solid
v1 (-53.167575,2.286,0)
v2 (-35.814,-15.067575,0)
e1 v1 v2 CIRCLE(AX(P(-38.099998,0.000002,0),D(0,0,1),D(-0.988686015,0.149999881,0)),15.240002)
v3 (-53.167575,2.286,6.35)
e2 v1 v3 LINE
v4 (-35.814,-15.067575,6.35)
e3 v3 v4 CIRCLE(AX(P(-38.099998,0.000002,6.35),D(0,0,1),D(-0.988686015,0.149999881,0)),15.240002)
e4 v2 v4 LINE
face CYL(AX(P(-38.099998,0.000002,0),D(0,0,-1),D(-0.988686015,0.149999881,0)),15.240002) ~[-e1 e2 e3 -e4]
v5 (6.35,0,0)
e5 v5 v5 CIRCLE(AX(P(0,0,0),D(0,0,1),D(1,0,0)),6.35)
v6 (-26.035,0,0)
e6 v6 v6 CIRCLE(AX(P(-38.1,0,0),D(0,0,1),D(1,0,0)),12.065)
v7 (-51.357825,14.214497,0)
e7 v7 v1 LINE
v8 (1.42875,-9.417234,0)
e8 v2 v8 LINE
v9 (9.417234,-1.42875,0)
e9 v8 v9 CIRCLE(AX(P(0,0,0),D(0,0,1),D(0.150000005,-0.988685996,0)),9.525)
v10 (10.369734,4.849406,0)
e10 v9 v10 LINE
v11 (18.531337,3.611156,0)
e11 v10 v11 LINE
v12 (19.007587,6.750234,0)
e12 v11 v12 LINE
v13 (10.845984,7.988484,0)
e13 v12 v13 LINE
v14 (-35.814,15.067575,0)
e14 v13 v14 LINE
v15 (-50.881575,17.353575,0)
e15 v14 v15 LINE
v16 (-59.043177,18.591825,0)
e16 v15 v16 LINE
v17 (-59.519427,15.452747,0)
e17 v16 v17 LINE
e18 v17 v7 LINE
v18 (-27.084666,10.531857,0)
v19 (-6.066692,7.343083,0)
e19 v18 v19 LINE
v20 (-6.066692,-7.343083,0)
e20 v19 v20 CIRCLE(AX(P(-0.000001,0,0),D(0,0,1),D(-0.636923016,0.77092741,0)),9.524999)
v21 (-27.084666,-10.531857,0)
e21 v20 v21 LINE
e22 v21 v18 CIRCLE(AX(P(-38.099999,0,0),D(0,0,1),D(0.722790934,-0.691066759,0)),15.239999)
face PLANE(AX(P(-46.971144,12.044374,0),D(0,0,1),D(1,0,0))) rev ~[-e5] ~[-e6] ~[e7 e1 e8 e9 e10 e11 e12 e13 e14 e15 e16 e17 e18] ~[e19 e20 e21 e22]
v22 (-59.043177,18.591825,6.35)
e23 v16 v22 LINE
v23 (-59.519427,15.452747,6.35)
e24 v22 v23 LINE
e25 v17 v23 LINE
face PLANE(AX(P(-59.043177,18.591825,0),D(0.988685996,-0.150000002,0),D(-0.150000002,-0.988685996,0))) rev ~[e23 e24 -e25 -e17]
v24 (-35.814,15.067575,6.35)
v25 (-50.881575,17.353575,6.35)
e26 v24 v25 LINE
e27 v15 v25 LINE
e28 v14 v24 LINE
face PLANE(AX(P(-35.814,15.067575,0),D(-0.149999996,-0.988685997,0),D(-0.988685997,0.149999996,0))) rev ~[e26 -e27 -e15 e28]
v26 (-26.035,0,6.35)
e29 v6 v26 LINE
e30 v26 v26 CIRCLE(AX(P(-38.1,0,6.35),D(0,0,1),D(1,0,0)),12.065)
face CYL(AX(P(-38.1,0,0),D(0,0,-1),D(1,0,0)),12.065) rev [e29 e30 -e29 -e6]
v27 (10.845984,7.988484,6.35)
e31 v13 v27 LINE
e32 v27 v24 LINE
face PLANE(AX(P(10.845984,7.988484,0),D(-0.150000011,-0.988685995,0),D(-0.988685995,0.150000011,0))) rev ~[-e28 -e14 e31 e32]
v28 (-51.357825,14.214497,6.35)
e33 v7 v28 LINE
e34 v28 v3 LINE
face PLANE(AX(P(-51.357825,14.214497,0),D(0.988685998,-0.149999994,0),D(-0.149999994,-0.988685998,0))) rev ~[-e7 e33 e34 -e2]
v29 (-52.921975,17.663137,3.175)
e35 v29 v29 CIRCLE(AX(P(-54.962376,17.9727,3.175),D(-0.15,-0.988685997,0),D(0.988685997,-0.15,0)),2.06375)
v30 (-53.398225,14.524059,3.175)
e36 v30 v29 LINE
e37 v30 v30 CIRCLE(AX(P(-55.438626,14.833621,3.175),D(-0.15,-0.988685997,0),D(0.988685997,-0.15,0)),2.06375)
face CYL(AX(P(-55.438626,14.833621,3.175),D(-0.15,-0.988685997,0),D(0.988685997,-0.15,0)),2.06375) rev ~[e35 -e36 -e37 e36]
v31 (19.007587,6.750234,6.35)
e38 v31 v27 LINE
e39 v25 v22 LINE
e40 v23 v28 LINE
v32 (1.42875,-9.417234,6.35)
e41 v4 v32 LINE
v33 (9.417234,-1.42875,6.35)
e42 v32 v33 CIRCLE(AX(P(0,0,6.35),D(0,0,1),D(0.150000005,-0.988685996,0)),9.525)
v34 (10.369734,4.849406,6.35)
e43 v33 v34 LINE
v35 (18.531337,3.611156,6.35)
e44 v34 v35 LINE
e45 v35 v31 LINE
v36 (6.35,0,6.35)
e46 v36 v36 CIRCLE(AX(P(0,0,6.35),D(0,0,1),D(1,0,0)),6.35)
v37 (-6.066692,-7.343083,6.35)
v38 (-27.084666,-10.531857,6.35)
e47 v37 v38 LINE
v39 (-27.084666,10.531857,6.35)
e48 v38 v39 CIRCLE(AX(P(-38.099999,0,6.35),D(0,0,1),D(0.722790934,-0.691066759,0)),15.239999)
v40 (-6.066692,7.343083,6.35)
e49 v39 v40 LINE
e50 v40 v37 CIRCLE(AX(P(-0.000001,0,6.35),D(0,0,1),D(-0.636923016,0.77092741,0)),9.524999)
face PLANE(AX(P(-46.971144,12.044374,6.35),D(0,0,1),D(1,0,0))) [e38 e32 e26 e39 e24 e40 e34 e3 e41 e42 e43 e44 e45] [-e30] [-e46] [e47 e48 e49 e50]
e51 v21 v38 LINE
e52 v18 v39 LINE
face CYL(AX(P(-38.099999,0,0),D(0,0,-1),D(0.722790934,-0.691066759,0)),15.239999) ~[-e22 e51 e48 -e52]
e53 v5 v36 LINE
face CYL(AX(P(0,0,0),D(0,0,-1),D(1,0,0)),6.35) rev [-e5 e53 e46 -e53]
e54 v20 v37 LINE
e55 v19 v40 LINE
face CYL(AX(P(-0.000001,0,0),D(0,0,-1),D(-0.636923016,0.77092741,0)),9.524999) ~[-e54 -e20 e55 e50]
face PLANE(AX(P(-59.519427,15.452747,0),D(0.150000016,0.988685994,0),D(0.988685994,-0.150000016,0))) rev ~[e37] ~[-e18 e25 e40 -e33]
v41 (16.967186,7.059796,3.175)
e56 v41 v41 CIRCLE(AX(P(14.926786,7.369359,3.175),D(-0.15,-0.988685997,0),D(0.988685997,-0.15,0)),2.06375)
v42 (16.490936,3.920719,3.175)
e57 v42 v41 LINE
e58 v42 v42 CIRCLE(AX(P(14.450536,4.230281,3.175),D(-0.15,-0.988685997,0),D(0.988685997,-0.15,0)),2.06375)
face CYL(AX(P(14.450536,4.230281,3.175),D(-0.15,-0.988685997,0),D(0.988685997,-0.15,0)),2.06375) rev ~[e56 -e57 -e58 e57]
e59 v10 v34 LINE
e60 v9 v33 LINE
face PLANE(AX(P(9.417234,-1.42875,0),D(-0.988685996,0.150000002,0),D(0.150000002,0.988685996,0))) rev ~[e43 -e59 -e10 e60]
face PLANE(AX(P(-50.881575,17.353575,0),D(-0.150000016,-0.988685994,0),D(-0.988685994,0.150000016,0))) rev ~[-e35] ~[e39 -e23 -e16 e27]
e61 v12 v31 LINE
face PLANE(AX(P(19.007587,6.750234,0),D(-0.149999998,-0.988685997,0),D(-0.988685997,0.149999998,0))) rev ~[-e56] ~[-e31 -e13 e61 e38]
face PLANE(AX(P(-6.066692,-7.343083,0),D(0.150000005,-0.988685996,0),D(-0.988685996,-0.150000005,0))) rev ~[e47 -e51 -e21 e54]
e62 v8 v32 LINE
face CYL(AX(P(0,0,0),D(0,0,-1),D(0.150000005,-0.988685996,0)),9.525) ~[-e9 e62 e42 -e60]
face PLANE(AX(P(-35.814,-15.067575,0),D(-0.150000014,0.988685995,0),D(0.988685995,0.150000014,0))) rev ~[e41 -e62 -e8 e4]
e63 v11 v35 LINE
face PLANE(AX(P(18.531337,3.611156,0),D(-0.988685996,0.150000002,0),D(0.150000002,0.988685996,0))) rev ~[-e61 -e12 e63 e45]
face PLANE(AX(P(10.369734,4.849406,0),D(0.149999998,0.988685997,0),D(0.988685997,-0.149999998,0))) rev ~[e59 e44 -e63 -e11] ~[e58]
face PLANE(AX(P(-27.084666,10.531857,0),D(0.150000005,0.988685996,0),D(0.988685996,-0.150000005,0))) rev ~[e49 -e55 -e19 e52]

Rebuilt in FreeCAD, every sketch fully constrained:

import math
import FreeCAD as App
import Part
import Sketcher
from FreeCAD import Vector
Q = App.Units.Quantity

doc = App.newDocument("Part")
params = doc.addObject("Spreadsheet::Sheet", "Params")
for row, (alias, value) in enumerate([
    ("sketch1_diameter", "0.5 in"),
    ("sketch1_radius", "0.6000001 in"),
    ("sketch1_radius2", "0.6 in"),
    ("sketch1_diameter2", "0.95 in"),
    ("sketch1_radius3", "0.375 in"),
    ("pad1_length", "0.25 in"),
], start=1):
    params.set(f"A{row}", alias)
    params.set(f"B{row}", "=" + value)
    params.setAlias(f"B{row}", alias)

body = doc.addObject("PartDesign::Body", "Body")

# Sketch on XY plane
sketch1 = body.newObject("Sketcher::SketchObject", "Sketch")
sketch1.AttachmentSupport = (doc.getObject("XY_Plane"), [""])
sketch1.MapMode = "FlatFace"
sketch1.addGeometry([
    Part.LineSegment(Vector(-35.8, 15.1, 0), Vector(-50.9, 17.4, 0)),  # 0
    Part.LineSegment(Vector(-50.9, 17.4, 0), Vector(-59, 18.6, 0)),  # 1
    Part.LineSegment(Vector(-59, 18.6, 0), Vector(-59.5, 15.5, 0)),  # 2
    Part.LineSegment(Vector(-59.5, 15.5, 0), Vector(-51.4, 14.2, 0)),  # 3
    Part.LineSegment(Vector(-51.4, 14.2, 0), Vector(-53.2, 2.3, 0)),  # 4
    Part.ArcOfCircle(Part.Circle(Vector(-38.1, 0, 0), Vector(0, 0, 1), 15.2), math.radians(171), math.radians(279)),  # 5
    Part.LineSegment(Vector(-35.8, -15.1, 0), Vector(1.4, -9.4, 0)),  # 6
    Part.ArcOfCircle(Part.Circle(Vector(0, 0, 0), Vector(0, 0, 1), 9.5), math.radians(-81), math.radians(-9)),  # 7
    Part.LineSegment(Vector(9.4, -1.4, 0), Vector(10.4, 4.8, 0)),  # 8
    Part.LineSegment(Vector(10.4, 4.8, 0), Vector(18.5, 3.6, 0)),  # 9
    Part.LineSegment(Vector(18.5, 3.6, 0), Vector(19, 6.8, 0)),  # 10
    Part.LineSegment(Vector(19, 6.8, 0), Vector(10.8, 8, 0)),  # 11
    Part.LineSegment(Vector(10.8, 8, 0), Vector(-35.8, 15.1, 0)),  # 12
    Part.Circle(Vector(0, 0, 0), Vector(0, 0, 1), 6.3),  # 13
    Part.Circle(Vector(-38.1, 0, 0), Vector(0, 0, 1), 12.1),  # 14
    Part.ArcOfCircle(Part.Circle(Vector(-38.1, 0, 0), Vector(0, 0, 1), 15.2), math.radians(-44), math.radians(44)),  # 15
    Part.LineSegment(Vector(-27.1, 10.5, 0), Vector(-6.1, 7.3, 0)),  # 16
    Part.ArcOfCircle(Part.Circle(Vector(0, 0, 0), Vector(0, 0, 1), 9.5), math.radians(130), math.radians(230)),  # 17
    Part.LineSegment(Vector(-6.1, -7.3, 0), Vector(-27.1, -10.5, 0)),  # 18
], False)
sketch1.addConstraint([
    Sketcher.Constraint("Coincident", 0, 2, 1, 1),
    Sketcher.Constraint("Coincident", 1, 2, 2, 1),
    Sketcher.Constraint("Coincident", 2, 2, 3, 1),
    Sketcher.Constraint("Coincident", 3, 2, 4, 1),
    Sketcher.Constraint("Tangent", 4, 2, 5, 1),
    Sketcher.Constraint("Tangent", 5, 2, 6, 1),
    Sketcher.Constraint("Tangent", 6, 2, 7, 1),
    Sketcher.Constraint("Tangent", 7, 2, 8, 1),
    Sketcher.Constraint("Coincident", 8, 2, 9, 1),
    Sketcher.Constraint("Coincident", 9, 2, 10, 1),
    Sketcher.Constraint("Coincident", 10, 2, 11, 1),
    Sketcher.Constraint("Coincident", 11, 2, 12, 1),
    Sketcher.Constraint("Coincident", 12, 2, 0, 1),
    Sketcher.Constraint("Coincident", 15, 2, 16, 1),
    Sketcher.Constraint("Coincident", 16, 2, 17, 1),
    Sketcher.Constraint("Coincident", 17, 2, 18, 1),
    Sketcher.Constraint("Coincident", 18, 2, 15, 1),
    Sketcher.Constraint("Coincident", 7, 3, -1, 1),
    Sketcher.Constraint("Coincident", 13, 3, -1, 1),
    Sketcher.Constraint("Coincident", 17, 3, -1, 1),
    Sketcher.Constraint("Coincident", 14, 3, 5, 3),
    Sketcher.Constraint("Coincident", 15, 3, 5, 3),
    Sketcher.Constraint("Equal", 7, 17),
    Sketcher.Constraint("Symmetric", 5, 2, 12, 2, -1),
    Sketcher.Constraint("Symmetric", 15, 2, 18, 2, -1),
    Sketcher.Constraint("Parallel", 0, 1),
    Sketcher.Constraint("Perpendicular", 1, 2),
    Sketcher.Constraint("Perpendicular", 2, 3),
    Sketcher.Constraint("Perpendicular", 3, 4),
    Sketcher.Constraint("Parallel", 4, 8),
    Sketcher.Constraint("Perpendicular", 8, 9),
    Sketcher.Constraint("Perpendicular", 9, 10),
    Sketcher.Constraint("Perpendicular", 10, 11),
    Sketcher.Constraint("Parallel", 11, 12),
    Sketcher.Constraint("Parallel", 12, 16),
    Sketcher.Constraint("Parallel", 6, 18),
    Sketcher.Constraint("Vertical", 16, 2, 17, 2),
    Sketcher.Constraint("Equal", 1, 3),
    Sketcher.Constraint("Equal", 3, 9),
    Sketcher.Constraint("Equal", 2, 10),
    Sketcher.Constraint("Equal", 9, 11),
    Sketcher.Constraint("Diameter", 13, Q("0.5 in")),
    Sketcher.Constraint("Radius", 5, Q("0.6000001 in")),
    Sketcher.Constraint("Radius", 15, Q("0.6 in")),
    Sketcher.Constraint("Diameter", 14, Q("0.95 in")),
    Sketcher.Constraint("Radius", 7, Q("0.375 in")),
    Sketcher.Constraint("DistanceX", 5, 3, -1, 1, Q("1.4999999 in")),
    Sketcher.Constraint("Distance", 8, Q("0.25 in")),
    Sketcher.Constraint("Distance", 1, Q("0.325 in")),
    Sketcher.Constraint("DistanceY", 16, 2, 11, 2, 0.645401),
])
sketch1.setExpression("Constraints[41]", "Params.sketch1_diameter")
sketch1.setExpression("Constraints[42]", "Params.sketch1_radius")
sketch1.setExpression("Constraints[43]", "Params.sketch1_radius2")
sketch1.setExpression("Constraints[44]", "Params.sketch1_diameter2")
sketch1.setExpression("Constraints[45]", "Params.sketch1_radius3")
pad1 = body.newObject("PartDesign::Pad", "Pad")
pad1.Profile = sketch1
pad1.setExpression("Length", "Params.pad1_length")

# Sketch on an angled plane
sketch2 = body.newObject("Sketcher::SketchObject", "Sketch001")
sketch2.Placement = App.Placement(Vector(0.9525, 6.278156, 0), App.Rotation(Vector(0.988685997, -0.15, 0), Vector(0, 0, 1.000000001), Vector(-0.15, -0.988685997, 0), "ZXY"))
sketch2.addGeometry(Part.Circle(Vector(-57, 3.2, 0), Vector(0, 0, 1), 2.1), False)
sketch2.addConstraint([
    Sketcher.Constraint("Diameter", 0, Q("0.1625 in")),
    Sketcher.Constraint("DistanceY", -1, 1, 0, 3, Q("0.125 in")),
    Sketcher.Constraint("DistanceX", 0, 3, -1, 1, 57.036436),
])
pocket1 = body.newObject("PartDesign::Pocket", "Pocket")
pocket1.Profile = sketch2
pocket1.Type = "ThroughAll"

# Sketch on an angled plane
sketch3 = body.newObject("Sketcher::SketchObject", "Sketch002")
sketch3.Placement = App.Placement(Vector(0.9525, 6.278156, 0), App.Rotation(Vector(0.988685997, -0.15, 0), Vector(0, 0, 1.000000001), Vector(-0.15, -0.988685997, 0), "ZXY"))
sketch3.addGeometry(Part.Circle(Vector(13.7, 3.2, 0), Vector(0, 0, 1), 2.1), False)
sketch3.addConstraint([
    Sketcher.Constraint("Diameter", 0, Q("0.1625 in")),
    Sketcher.Constraint("DistanceY", -1, 1, 0, 3, Q("0.125 in")),
    Sketcher.Constraint("DistanceX", -1, 1, 0, 3, Q("0.5375 in")),
])
pocket2 = body.newObject("PartDesign::Pocket", "Pocket001")
pocket2.Profile = sketch3
pocket2.Type = "ThroughAll"

doc.recompute()
